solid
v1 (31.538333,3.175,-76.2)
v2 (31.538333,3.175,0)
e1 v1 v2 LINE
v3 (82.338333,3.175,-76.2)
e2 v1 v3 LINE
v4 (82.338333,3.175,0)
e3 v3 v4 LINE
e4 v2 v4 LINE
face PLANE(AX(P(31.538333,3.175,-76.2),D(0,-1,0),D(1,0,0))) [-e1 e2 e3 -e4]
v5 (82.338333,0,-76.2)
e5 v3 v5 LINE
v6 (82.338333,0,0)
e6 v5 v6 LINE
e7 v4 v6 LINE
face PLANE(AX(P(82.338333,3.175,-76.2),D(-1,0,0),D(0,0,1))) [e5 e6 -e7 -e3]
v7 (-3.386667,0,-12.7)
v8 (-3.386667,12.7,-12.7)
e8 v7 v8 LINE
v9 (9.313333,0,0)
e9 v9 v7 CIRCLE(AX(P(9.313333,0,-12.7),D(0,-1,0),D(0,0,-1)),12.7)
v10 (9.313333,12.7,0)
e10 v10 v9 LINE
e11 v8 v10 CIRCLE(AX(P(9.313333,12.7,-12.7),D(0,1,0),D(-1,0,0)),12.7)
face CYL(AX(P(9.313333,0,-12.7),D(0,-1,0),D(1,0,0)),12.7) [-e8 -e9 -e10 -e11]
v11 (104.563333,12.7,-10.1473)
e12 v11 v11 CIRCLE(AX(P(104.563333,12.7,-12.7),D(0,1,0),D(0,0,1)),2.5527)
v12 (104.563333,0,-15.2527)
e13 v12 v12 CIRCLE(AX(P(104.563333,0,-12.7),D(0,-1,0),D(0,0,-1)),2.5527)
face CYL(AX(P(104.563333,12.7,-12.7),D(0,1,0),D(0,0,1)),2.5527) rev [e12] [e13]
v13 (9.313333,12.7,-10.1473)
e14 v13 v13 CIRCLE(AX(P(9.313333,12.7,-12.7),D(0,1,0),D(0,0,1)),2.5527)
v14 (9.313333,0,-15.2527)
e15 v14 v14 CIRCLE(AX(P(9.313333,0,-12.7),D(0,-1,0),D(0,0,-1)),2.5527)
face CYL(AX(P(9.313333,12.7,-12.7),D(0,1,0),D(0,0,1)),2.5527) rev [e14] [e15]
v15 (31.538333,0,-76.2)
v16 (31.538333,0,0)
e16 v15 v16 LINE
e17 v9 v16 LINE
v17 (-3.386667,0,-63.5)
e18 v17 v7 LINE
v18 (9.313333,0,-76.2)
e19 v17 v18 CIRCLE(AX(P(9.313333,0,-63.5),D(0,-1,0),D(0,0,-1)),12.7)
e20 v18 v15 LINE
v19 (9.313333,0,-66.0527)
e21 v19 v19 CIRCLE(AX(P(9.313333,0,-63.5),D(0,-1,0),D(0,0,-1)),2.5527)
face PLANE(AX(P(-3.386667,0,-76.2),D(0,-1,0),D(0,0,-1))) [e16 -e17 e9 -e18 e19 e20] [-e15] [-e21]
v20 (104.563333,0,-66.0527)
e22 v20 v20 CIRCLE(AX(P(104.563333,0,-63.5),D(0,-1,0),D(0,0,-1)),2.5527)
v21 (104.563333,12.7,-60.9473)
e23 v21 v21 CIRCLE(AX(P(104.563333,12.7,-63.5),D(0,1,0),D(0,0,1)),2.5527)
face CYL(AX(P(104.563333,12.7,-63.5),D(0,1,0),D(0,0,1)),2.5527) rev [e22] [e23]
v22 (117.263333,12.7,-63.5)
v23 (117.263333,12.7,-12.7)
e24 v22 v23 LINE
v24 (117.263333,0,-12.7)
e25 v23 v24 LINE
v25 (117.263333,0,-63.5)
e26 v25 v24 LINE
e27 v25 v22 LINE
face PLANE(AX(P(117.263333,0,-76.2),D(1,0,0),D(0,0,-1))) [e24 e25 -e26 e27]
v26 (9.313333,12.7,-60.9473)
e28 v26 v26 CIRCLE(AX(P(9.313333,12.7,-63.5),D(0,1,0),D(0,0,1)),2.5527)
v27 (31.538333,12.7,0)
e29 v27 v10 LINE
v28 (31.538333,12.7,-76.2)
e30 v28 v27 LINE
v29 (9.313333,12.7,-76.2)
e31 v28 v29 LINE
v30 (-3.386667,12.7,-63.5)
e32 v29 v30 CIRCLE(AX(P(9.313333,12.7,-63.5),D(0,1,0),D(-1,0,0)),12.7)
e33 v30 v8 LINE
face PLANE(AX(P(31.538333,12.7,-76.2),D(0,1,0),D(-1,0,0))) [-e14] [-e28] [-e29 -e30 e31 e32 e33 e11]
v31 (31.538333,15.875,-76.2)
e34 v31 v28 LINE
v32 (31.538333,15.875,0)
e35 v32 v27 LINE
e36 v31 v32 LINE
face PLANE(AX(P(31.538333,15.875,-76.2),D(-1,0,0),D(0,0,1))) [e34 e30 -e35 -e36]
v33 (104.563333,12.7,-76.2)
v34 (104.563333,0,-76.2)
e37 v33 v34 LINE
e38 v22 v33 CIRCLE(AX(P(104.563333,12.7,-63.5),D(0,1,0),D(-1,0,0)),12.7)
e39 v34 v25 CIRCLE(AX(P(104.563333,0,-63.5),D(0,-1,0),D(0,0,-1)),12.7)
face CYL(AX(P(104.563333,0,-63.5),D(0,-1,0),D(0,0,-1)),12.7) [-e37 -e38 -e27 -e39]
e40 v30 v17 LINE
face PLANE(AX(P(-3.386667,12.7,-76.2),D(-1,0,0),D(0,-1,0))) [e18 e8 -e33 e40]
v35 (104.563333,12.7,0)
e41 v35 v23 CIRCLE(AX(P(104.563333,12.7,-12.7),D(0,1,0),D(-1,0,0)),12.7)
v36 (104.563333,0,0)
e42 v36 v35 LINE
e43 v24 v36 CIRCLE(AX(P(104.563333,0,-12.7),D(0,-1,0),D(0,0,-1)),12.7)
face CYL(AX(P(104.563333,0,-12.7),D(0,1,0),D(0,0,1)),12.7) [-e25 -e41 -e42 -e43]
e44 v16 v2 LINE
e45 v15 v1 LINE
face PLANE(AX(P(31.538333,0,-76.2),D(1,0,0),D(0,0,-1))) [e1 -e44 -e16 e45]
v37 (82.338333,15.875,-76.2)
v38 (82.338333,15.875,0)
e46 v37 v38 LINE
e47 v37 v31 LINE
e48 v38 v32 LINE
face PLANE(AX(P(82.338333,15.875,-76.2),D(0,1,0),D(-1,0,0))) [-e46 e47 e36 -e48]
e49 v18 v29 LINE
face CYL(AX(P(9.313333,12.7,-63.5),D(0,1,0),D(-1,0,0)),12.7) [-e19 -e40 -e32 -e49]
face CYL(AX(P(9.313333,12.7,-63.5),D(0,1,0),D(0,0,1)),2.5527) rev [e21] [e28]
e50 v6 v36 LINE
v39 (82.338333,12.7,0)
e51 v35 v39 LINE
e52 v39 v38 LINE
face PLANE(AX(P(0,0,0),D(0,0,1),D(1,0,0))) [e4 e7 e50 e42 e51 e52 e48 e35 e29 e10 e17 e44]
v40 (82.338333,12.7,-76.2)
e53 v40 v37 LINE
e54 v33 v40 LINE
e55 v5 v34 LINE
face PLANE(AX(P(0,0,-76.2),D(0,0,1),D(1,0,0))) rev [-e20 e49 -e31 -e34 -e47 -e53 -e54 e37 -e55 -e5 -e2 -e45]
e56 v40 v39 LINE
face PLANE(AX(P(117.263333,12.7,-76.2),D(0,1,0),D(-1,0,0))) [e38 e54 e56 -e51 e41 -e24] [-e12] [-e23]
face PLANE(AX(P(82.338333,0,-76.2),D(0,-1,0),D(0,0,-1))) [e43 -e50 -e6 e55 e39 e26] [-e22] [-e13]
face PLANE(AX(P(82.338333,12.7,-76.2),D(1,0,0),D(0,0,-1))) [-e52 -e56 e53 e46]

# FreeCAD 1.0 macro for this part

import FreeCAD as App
import Part
import Sketcher
Q = App.Units.Quantity


def edges_at(feature, points):
    """Names of the edges that pass closest to the given points."""
    edges = feature.Shape.Edges
    near = lambda p: min(range(len(edges)), key=lambda i: edges[i].distToShape(Part.Vertex(*p))[0])
    return sorted({f"Edge{near(p) + 1}" for p in points})


def add_polygon(sketch, points):
    """Adds a closed chain of lines whose ends are joined by coincident constraints."""
    first, n = sketch.GeometryCount, len(points)
    for a, b in zip(points, points[1:] + points[:1]):
        sketch.addGeometry(Part.LineSegment(App.Vector(*a, 0), App.Vector(*b, 0)), False)
    for i in range(n):
        sketch.addConstraint(Sketcher.Constraint("Coincident", first + i, 2, first + (i + 1) % n, 1))

doc = App.newDocument("Part")
body = doc.addObject("PartDesign::Body", "Body")

# Sketch on XY plane
sketch1 = body.newObject("Sketcher::SketchObject", "Sketch")
sketch1.AttachmentSupport = (doc.getObject("XY_Plane"), [""])
sketch1.MapMode = "FlatFace"
add_polygon(sketch1, [(-3.386667, 0), (31.538333, 0), (31.538333, 3.175), (82.338333, 3.175), (82.338333, 0), (117.263333, 0), (117.263333, 12.7), (82.338333, 12.7), (82.338333, 15.875), (31.538333, 15.875), (31.538333, 12.7), (-3.386667, 12.7)])  # lines 0-11
sketch1.addConstraint(Sketcher.Constraint("Horizontal", 0))
sketch1.addConstraint(Sketcher.Constraint("Vertical", 1))
sketch1.addConstraint(Sketcher.Constraint("Horizontal", 2))
sketch1.addConstraint(Sketcher.Constraint("Vertical", 3))
sketch1.addConstraint(Sketcher.Constraint("Horizontal", 4))
sketch1.addConstraint(Sketcher.Constraint("Vertical", 5))
sketch1.addConstraint(Sketcher.Constraint("Horizontal", 6))
sketch1.addConstraint(Sketcher.Constraint("Vertical", 7))
sketch1.addConstraint(Sketcher.Constraint("Horizontal", 8))
sketch1.addConstraint(Sketcher.Constraint("Vertical", 9))
sketch1.addConstraint(Sketcher.Constraint("Horizontal", 10))
sketch1.addConstraint(Sketcher.Constraint("Vertical", 11))
sketch1.addConstraint(Sketcher.Constraint("PointOnObject", 0, 2, -1))
sketch1.addConstraint(Sketcher.Constraint("PointOnObject", 3, 2, -1))
sketch1.addConstraint(Sketcher.Constraint("Horizontal", 6, 2, 9, 2))
sketch1.addConstraint(Sketcher.Constraint("Vertical", 3, 2, 6, 2))
sketch1.addConstraint(Sketcher.Constraint("Vertical", 1, 2, 8, 2))
sketch1.addConstraint(Sketcher.Constraint("Equal", 0, 4))
sketch1.addConstraint(Sketcher.Constraint("Equal", 3, 7))
sketch1.addConstraint(Sketcher.Constraint("DistanceX", 2, 1, 2, 2, Q("2 in")))
sketch1.addConstraint(Sketcher.Constraint("DistanceY", 5, 1, 5, 2, Q("0.5 in")))
sketch1.addConstraint(Sketcher.Constraint("DistanceX", 0, 1, 0, 2, Q("1.375 in")))
sketch1.addConstraint(Sketcher.Constraint("DistanceY", 1, 1, 1, 2, Q("0.125 in")))
sketch1.addConstraint(Sketcher.Constraint("DistanceX", -1, 1, 0, 2, 31.538333))
pad1 = body.newObject("PartDesign::Pad", "Pad")
pad1.Profile = sketch1
pad1.Length = Q("3 in")
pad1.Reversed = True
doc.recompute()

fillet = body.newObject("PartDesign::Fillet", "Fillet")
fillet.Base = (pad1, edges_at(pad1, [
    (117.263, 6.35, 0),
    (-3.387, 6.35, 0),
    (117.263, 6.35, -76.2),
    (-3.387, 6.35, -76.2),
]))
fillet.Radius = Q("0.5 in")

# Sketch on XZ plane
sketch2 = body.newObject("Sketcher::SketchObject", "Sketch001")
sketch2.AttachmentSupport = (doc.getObject("XZ_Plane"), [""])
sketch2.MapMode = "FlatFace"
sketch2.AttachmentOffset = App.Placement(App.Vector(0, 0, -0.5 * 25.4), App.Rotation())
sketch2.addGeometry(Part.Circle(App.Vector(104.563333, -63.5, 0), App.Vector(0, 0, 1), 2.5527), False)
sketch2.addGeometry(Part.Circle(App.Vector(104.563333, -12.7, 0), App.Vector(0, 0, 1), 2.5527), False)
sketch2.addGeometry(Part.Circle(App.Vector(9.313333, -12.7, 0), App.Vector(0, 0, 1), 2.5527), False)
sketch2.addGeometry(Part.Circle(App.Vector(9.313333, -63.5, 0), App.Vector(0, 0, 1), 2.5527), False)
sketch2.addConstraint(Sketcher.Constraint("Equal", 0, 1))
sketch2.addConstraint(Sketcher.Constraint("Equal", 1, 2))
sketch2.addConstraint(Sketcher.Constraint("Equal", 2, 3))
sketch2.addConstraint(Sketcher.Constraint("Horizontal", 1, 3, 2, 3))
sketch2.addConstraint(Sketcher.Constraint("Horizontal", 0, 3, 3, 3))
sketch2.addConstraint(Sketcher.Constraint("Vertical", 0, 3, 1, 3))
sketch2.addConstraint(Sketcher.Constraint("Vertical", 2, 3, 3, 3))
sketch2.addConstraint(Sketcher.Constraint("Diameter", 0, Q("0.201 in")))
sketch2.addConstraint(Sketcher.Constraint("DistanceY", 0, 3, 1, 3, Q("2 in")))
sketch2.addConstraint(Sketcher.Constraint("DistanceY", 0, 3, -1, 1, Q("2.5 in")))
sketch2.addConstraint(Sketcher.Constraint("DistanceX", 2, 3, 1, 3, Q("3.75 in")))
sketch2.addConstraint(Sketcher.Constraint("DistanceX", -1, 1, 0, 3, 104.563333))
doc.recompute()
hole = body.newObject("PartDesign::Hole", "Hole")
hole.Profile = sketch2
hole.ThreadType = "None"
hole.Diameter = Q("0.201 in")
hole.DepthType = "Dimension"
hole.Depth = Q("0.65 in")
hole.DrillPoint = "Angled"
hole.DrillPointAngle = 118
hole.Reversed = True

doc.recompute()
